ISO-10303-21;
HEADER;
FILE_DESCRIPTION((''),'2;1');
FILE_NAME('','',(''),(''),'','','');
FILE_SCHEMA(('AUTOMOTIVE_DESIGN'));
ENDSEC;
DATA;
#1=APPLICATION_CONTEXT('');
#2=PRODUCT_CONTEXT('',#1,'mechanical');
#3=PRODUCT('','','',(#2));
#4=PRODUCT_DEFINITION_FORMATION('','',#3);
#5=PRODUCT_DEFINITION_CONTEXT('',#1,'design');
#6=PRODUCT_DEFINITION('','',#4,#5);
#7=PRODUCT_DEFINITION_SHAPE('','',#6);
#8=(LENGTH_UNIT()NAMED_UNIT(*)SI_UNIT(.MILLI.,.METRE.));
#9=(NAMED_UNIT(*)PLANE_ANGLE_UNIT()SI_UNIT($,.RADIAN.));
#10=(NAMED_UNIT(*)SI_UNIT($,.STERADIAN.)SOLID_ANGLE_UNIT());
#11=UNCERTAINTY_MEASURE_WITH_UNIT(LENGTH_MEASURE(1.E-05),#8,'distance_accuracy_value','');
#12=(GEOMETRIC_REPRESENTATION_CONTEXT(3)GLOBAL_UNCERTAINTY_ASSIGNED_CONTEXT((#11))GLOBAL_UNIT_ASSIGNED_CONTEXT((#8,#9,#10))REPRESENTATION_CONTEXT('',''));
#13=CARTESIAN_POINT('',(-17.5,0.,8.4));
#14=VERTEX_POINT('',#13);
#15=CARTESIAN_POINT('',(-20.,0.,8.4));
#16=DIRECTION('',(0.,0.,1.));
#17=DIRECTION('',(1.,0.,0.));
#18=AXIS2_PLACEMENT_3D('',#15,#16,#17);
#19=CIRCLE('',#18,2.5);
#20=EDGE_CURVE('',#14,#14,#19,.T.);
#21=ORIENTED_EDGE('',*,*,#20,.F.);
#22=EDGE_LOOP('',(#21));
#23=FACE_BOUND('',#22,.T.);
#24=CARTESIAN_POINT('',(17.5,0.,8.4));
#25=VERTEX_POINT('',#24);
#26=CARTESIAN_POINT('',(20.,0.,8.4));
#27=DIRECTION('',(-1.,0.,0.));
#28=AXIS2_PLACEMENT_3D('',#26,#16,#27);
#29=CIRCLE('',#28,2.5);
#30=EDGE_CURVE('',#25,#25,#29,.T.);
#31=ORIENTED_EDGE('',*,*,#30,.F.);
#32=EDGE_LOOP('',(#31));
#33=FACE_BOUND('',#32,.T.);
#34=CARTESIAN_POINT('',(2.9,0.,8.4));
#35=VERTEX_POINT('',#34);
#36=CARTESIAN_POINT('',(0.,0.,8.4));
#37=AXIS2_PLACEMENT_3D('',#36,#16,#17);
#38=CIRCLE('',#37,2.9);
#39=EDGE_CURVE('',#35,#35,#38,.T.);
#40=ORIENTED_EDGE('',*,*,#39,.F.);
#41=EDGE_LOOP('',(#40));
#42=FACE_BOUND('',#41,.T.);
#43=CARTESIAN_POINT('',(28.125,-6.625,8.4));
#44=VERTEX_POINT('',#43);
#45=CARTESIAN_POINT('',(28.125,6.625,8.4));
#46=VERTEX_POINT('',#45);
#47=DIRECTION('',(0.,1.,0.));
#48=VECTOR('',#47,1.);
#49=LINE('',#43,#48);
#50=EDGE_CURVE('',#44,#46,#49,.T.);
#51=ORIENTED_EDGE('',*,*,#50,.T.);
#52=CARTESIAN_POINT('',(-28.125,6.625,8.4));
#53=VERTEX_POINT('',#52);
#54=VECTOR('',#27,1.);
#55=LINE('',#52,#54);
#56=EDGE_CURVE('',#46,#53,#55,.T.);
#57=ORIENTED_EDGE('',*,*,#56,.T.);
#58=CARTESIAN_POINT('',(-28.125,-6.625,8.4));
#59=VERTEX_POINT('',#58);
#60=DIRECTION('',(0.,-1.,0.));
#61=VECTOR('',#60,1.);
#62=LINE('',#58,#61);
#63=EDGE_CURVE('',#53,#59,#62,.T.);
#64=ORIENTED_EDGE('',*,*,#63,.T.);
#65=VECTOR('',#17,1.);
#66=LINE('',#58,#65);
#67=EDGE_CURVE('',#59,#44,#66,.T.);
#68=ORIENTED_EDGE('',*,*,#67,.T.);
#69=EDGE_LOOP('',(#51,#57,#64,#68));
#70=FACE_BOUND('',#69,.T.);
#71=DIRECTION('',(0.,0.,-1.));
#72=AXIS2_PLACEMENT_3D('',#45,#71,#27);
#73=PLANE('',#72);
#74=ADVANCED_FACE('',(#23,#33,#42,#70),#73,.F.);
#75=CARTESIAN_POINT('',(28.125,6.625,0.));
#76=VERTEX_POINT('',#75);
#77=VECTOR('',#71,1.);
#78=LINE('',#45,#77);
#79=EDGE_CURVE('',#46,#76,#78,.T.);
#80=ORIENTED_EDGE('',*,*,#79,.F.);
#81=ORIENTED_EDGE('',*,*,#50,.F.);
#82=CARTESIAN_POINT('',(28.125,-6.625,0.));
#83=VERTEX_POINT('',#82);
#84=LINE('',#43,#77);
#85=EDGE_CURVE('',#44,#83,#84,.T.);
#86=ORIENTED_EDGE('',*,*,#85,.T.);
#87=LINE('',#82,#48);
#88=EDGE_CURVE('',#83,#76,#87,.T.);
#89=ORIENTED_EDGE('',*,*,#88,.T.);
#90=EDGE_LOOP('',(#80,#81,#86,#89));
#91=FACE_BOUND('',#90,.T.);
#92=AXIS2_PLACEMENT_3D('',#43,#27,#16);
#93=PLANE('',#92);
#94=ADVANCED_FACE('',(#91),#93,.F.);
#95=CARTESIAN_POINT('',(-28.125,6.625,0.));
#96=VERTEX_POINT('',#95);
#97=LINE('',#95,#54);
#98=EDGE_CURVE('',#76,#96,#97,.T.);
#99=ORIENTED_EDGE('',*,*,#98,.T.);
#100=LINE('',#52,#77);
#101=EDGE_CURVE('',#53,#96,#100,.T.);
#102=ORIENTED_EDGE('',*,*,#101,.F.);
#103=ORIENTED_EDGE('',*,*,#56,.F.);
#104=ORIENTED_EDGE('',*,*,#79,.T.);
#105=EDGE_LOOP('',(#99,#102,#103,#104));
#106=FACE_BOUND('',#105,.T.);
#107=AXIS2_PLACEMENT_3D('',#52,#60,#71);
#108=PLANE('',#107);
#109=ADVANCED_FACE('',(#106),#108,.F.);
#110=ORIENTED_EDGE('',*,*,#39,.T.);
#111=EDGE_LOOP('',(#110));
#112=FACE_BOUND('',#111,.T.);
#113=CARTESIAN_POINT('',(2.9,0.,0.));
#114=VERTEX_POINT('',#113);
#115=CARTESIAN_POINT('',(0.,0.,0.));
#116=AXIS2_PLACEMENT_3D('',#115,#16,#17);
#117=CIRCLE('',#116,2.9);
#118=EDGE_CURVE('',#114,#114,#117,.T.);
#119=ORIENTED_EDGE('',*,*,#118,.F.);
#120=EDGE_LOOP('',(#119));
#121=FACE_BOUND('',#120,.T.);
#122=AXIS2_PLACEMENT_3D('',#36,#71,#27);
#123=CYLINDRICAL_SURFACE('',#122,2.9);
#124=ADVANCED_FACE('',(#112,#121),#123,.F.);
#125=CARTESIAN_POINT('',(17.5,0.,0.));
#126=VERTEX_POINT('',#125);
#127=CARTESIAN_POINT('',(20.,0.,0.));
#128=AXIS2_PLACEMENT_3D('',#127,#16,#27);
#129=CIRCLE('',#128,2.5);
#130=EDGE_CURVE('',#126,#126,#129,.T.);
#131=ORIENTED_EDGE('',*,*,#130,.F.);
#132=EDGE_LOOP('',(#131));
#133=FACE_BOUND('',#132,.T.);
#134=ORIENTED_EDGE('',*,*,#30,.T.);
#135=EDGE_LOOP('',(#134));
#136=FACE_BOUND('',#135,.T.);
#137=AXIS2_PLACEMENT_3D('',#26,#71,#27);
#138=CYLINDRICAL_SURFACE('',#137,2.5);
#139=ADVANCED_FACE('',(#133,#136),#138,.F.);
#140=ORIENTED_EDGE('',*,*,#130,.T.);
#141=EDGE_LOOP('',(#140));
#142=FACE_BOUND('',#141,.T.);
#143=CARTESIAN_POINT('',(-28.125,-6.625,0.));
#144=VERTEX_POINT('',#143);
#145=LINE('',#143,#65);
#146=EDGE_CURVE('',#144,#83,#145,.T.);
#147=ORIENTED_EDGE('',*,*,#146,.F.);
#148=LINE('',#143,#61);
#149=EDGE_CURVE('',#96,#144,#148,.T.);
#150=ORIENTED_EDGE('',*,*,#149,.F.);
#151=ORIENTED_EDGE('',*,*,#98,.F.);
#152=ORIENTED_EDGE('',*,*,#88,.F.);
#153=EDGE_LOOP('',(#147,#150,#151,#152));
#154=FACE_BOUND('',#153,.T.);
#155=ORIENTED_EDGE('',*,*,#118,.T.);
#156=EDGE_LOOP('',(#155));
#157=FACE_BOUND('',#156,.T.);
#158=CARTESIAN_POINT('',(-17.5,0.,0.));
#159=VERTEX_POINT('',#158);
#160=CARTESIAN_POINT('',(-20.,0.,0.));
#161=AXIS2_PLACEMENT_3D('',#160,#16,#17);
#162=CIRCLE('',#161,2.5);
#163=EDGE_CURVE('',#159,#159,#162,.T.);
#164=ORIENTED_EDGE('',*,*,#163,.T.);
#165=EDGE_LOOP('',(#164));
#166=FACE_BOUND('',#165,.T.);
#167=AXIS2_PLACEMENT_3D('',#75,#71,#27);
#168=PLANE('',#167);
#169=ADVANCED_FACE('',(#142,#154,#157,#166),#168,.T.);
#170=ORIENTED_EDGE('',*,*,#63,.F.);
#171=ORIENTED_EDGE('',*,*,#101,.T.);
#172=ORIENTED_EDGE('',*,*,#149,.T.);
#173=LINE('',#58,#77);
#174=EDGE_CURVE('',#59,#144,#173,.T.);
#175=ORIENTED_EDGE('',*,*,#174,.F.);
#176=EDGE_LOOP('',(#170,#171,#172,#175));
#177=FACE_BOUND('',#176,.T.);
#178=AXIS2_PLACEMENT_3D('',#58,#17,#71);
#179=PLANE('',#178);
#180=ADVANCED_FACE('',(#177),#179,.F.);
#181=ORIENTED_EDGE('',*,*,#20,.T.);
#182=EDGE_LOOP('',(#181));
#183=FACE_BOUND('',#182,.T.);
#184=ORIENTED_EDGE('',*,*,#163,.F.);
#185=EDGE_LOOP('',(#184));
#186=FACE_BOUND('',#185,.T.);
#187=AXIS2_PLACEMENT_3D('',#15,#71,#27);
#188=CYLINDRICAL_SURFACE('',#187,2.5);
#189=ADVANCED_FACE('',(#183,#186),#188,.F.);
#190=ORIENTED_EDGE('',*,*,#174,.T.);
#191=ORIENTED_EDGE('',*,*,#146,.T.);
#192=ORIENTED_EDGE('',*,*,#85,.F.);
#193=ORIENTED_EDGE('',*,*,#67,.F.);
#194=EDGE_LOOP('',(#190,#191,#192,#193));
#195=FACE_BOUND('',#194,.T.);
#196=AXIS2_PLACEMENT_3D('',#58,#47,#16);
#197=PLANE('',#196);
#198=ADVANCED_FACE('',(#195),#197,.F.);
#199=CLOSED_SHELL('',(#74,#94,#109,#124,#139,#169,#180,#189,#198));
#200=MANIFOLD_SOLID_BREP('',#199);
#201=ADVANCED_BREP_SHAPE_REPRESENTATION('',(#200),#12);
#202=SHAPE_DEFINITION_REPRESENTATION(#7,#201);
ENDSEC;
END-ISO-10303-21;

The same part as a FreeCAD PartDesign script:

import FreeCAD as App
import Part
import Sketcher
from FreeCAD import Vector
Q = App.Units.Quantity


def add_polygon(sketch, points):
    """Adds a closed chain of lines whose ends are joined by coincident constraints."""
    first, n = sketch.GeometryCount, len(points)
    for a, b in zip(points, points[1:] + points[:1]):
        sketch.addGeometry(Part.LineSegment(App.Vector(*a, 0), App.Vector(*b, 0)), False)
    for i in range(n):
        sketch.addConstraint(Sketcher.Constraint("Coincident", first + i, 2, first + (i + 1) % n, 1))

doc = App.newDocument("Part")
params = doc.addObject("Spreadsheet::Sheet", "Params")
for row, (alias, value) in enumerate([
    ("sketch1_diameter", "5 mm"),
    ("sketch1_diameter2", "5.8 mm"),
    ("sketch1_width", "56.25 mm"),
    ("sketch1_height", "13.25 mm"),
    ("pad1_length", "8.4 mm"),
], start=1):
    params.set(f"A{row}", alias)
    params.set(f"B{row}", "=" + value)
    params.setAlias(f"B{row}", alias)

body = doc.addObject("PartDesign::Body", "Body")

sketch1 = body.newObject("Sketcher::SketchObject", "Sketch")
sketch1.AttachmentSupport = (doc.getObject("XY_Plane"), [""])
sketch1.MapMode = "FlatFace"
add_polygon(sketch1, [(-28.125, 6.625), (-28.125, -6.625), (28.125, -6.625), (28.125, 6.625)])
sketch1.addGeometry(Part.Circle(Vector(-20, 0, 0), Vector(0, 0, 1), 2.5), False)
sketch1.addGeometry(Part.Circle(Vector(0, 0, 0), Vector(0, 0, 1), 2.9), False)
sketch1.addGeometry(Part.Circle(Vector(20, 0, 0), Vector(0, 0, 1), 2.5), False)
sketch1.addConstraint([
    Sketcher.Constraint("Vertical", 0),
    Sketcher.Constraint("Horizontal", 1),
    Sketcher.Constraint("Vertical", 2),
    Sketcher.Constraint("Horizontal", 3),
    Sketcher.Constraint("Coincident", 5, 3, -1, 1),
    Sketcher.Constraint("Equal", 4, 6),
    Sketcher.Constraint("Symmetric", 4, 3, 6, 3, -1, 1),
    Sketcher.Constraint("Symmetric", 0, 2, 2, 2, -1, 1),
    Sketcher.Constraint("PointOnObject", 4, 3, -1),
    Sketcher.Constraint("Diameter", 4, Q("5 mm")),
    Sketcher.Constraint("Diameter", 5, Q("5.8 mm")),
    Sketcher.Constraint("DistanceX", 4, 3, -1, 1, Q("20 mm")),
    Sketcher.Constraint("DistanceX", 1, 1, 1, 2, Q("56.25 mm")),
    Sketcher.Constraint("DistanceY", 0, 2, 0, 1, Q("13.25 mm")),
])
sketch1.setExpression("Constraints[13]", "Params.sketch1_diameter")
sketch1.setExpression("Constraints[14]", "Params.sketch1_diameter2")
sketch1.setExpression("Constraints[16]", "Params.sketch1_width")
sketch1.setExpression("Constraints[17]", "Params.sketch1_height")
pad1 = body.newObject("PartDesign::Pad", "Pad")
pad1.Profile = sketch1
pad1.setExpression("Length", "Params.pad1_length")

doc.recompute()
